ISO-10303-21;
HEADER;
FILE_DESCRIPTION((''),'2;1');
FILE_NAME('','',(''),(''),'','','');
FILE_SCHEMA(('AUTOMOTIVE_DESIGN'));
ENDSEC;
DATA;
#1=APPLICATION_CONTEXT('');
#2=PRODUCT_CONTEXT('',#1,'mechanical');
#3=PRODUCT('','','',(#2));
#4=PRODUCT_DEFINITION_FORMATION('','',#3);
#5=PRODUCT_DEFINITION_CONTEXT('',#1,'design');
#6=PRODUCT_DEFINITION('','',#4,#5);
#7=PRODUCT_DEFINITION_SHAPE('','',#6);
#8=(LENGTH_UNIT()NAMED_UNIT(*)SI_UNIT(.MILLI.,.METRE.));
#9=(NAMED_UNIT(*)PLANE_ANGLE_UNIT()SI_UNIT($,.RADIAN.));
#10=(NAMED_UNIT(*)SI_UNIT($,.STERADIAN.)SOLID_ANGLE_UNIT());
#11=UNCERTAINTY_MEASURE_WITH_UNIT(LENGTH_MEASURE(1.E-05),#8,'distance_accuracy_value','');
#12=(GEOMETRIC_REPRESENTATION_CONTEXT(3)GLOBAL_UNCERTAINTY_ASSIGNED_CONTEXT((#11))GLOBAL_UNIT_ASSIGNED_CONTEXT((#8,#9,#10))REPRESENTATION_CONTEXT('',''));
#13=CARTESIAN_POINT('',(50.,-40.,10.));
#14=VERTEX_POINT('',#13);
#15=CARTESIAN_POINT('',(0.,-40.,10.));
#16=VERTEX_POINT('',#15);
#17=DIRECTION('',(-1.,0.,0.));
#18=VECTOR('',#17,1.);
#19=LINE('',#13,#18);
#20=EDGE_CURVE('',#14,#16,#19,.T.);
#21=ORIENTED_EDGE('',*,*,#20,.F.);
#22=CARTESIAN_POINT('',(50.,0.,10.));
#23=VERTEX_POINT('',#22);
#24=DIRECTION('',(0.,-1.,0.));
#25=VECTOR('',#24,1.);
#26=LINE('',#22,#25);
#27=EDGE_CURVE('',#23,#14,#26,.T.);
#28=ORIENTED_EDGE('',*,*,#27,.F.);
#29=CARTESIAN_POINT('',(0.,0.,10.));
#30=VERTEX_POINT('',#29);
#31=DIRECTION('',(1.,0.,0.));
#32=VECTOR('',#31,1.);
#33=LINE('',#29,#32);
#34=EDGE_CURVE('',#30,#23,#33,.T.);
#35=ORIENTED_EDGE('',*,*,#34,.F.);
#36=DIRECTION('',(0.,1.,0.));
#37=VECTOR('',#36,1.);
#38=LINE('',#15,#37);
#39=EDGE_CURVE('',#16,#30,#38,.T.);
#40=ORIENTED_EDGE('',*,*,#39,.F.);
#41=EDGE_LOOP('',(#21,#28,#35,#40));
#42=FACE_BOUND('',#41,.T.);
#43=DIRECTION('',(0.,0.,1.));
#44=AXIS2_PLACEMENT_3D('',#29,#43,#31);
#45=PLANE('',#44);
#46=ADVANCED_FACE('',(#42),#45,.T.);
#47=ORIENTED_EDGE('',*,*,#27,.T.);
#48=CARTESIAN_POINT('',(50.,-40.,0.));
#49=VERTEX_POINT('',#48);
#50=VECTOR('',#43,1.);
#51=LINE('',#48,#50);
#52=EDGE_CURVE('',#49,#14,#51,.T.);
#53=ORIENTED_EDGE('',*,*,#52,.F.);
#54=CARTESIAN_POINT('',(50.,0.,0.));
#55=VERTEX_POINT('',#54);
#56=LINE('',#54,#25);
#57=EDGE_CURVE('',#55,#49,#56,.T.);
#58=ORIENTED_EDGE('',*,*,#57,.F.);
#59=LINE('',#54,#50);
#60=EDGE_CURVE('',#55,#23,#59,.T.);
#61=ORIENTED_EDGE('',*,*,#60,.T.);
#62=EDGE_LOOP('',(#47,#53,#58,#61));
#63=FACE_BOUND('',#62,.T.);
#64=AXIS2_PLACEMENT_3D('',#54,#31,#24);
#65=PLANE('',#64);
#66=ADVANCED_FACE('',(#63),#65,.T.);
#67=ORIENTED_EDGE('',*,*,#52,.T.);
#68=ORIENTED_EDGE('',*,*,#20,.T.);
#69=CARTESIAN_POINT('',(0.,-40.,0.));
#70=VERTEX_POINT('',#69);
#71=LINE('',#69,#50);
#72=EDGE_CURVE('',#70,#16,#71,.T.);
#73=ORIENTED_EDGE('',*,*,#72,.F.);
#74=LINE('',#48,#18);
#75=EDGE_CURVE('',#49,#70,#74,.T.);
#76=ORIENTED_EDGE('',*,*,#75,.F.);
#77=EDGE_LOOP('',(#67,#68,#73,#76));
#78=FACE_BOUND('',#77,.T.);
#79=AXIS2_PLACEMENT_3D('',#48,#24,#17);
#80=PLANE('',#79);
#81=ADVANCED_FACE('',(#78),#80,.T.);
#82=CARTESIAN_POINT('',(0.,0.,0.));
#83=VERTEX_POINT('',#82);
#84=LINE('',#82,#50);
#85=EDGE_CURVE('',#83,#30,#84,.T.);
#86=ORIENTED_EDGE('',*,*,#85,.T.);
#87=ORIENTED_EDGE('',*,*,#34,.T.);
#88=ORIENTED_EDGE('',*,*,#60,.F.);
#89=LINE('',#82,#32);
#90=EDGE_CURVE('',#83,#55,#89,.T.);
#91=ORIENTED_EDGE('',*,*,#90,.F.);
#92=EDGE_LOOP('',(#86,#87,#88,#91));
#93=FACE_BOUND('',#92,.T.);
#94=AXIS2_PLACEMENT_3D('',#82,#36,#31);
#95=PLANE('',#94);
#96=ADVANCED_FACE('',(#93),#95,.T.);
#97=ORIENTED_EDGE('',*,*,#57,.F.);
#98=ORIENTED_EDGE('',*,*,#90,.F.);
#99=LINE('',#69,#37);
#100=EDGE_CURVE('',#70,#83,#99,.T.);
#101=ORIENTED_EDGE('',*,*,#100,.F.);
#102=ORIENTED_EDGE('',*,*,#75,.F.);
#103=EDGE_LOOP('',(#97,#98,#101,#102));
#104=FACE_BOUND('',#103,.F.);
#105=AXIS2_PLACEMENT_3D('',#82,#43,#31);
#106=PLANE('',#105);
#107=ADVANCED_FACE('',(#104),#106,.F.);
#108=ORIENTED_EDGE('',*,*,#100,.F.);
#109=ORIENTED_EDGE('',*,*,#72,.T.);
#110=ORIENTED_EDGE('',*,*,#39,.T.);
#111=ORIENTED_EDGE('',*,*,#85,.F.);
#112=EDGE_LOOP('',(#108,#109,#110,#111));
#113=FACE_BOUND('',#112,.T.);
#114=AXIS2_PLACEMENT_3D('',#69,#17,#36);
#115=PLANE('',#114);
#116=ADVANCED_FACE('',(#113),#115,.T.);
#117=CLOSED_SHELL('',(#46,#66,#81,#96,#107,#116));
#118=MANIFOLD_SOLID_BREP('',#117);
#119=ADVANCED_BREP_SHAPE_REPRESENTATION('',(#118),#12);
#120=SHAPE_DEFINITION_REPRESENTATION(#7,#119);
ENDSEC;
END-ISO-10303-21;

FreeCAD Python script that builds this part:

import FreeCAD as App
import Part
import Sketcher


def add_polygon(sketch, points):
    """Adds a closed chain of lines whose ends are joined by coincident constraints."""
    first, n = sketch.GeometryCount, len(points)
    for a, b in zip(points, points[1:] + points[:1]):
        sketch.addGeometry(Part.LineSegment(App.Vector(*a, 0), App.Vector(*b, 0)), False)
    for i in range(n):
        sketch.addConstraint(Sketcher.Constraint("Coincident", first + i, 2, first + (i + 1) % n, 1))

doc = App.newDocument("Part")
body = doc.addObject("PartDesign::Body", "Body")

# Sketch on XY plane
sketch1 = body.newObject("Sketcher::SketchObject", "Sketch")
sketch1.AttachmentSupport = (doc.getObject("XY_Plane"), [""])
sketch1.MapMode = "FlatFace"
add_polygon(sketch1, [(50, 0), (0, 0), (0, -40), (50, -40)])  # lines 0-3
sketch1.addConstraint(Sketcher.Constraint("Horizontal", 0))
sketch1.addConstraint(Sketcher.Constraint("Vertical", 1))
sketch1.addConstraint(Sketcher.Constraint("Horizontal", 2))
sketch1.addConstraint(Sketcher.Constraint("Vertical", 3))
sketch1.addConstraint(Sketcher.Constraint("Coincident", 0, 2, -1, 1))
sketch1.addConstraint(Sketcher.Constraint("DistanceX", 0, 2, 0, 1, 50.0))
sketch1.addConstraint(Sketcher.Constraint("DistanceY", 1, 2, 1, 1, 40.0))
pad1 = body.newObject("PartDesign::Pad", "Pad")
pad1.Profile = sketch1
pad1.Length = 10

doc.recompute()
